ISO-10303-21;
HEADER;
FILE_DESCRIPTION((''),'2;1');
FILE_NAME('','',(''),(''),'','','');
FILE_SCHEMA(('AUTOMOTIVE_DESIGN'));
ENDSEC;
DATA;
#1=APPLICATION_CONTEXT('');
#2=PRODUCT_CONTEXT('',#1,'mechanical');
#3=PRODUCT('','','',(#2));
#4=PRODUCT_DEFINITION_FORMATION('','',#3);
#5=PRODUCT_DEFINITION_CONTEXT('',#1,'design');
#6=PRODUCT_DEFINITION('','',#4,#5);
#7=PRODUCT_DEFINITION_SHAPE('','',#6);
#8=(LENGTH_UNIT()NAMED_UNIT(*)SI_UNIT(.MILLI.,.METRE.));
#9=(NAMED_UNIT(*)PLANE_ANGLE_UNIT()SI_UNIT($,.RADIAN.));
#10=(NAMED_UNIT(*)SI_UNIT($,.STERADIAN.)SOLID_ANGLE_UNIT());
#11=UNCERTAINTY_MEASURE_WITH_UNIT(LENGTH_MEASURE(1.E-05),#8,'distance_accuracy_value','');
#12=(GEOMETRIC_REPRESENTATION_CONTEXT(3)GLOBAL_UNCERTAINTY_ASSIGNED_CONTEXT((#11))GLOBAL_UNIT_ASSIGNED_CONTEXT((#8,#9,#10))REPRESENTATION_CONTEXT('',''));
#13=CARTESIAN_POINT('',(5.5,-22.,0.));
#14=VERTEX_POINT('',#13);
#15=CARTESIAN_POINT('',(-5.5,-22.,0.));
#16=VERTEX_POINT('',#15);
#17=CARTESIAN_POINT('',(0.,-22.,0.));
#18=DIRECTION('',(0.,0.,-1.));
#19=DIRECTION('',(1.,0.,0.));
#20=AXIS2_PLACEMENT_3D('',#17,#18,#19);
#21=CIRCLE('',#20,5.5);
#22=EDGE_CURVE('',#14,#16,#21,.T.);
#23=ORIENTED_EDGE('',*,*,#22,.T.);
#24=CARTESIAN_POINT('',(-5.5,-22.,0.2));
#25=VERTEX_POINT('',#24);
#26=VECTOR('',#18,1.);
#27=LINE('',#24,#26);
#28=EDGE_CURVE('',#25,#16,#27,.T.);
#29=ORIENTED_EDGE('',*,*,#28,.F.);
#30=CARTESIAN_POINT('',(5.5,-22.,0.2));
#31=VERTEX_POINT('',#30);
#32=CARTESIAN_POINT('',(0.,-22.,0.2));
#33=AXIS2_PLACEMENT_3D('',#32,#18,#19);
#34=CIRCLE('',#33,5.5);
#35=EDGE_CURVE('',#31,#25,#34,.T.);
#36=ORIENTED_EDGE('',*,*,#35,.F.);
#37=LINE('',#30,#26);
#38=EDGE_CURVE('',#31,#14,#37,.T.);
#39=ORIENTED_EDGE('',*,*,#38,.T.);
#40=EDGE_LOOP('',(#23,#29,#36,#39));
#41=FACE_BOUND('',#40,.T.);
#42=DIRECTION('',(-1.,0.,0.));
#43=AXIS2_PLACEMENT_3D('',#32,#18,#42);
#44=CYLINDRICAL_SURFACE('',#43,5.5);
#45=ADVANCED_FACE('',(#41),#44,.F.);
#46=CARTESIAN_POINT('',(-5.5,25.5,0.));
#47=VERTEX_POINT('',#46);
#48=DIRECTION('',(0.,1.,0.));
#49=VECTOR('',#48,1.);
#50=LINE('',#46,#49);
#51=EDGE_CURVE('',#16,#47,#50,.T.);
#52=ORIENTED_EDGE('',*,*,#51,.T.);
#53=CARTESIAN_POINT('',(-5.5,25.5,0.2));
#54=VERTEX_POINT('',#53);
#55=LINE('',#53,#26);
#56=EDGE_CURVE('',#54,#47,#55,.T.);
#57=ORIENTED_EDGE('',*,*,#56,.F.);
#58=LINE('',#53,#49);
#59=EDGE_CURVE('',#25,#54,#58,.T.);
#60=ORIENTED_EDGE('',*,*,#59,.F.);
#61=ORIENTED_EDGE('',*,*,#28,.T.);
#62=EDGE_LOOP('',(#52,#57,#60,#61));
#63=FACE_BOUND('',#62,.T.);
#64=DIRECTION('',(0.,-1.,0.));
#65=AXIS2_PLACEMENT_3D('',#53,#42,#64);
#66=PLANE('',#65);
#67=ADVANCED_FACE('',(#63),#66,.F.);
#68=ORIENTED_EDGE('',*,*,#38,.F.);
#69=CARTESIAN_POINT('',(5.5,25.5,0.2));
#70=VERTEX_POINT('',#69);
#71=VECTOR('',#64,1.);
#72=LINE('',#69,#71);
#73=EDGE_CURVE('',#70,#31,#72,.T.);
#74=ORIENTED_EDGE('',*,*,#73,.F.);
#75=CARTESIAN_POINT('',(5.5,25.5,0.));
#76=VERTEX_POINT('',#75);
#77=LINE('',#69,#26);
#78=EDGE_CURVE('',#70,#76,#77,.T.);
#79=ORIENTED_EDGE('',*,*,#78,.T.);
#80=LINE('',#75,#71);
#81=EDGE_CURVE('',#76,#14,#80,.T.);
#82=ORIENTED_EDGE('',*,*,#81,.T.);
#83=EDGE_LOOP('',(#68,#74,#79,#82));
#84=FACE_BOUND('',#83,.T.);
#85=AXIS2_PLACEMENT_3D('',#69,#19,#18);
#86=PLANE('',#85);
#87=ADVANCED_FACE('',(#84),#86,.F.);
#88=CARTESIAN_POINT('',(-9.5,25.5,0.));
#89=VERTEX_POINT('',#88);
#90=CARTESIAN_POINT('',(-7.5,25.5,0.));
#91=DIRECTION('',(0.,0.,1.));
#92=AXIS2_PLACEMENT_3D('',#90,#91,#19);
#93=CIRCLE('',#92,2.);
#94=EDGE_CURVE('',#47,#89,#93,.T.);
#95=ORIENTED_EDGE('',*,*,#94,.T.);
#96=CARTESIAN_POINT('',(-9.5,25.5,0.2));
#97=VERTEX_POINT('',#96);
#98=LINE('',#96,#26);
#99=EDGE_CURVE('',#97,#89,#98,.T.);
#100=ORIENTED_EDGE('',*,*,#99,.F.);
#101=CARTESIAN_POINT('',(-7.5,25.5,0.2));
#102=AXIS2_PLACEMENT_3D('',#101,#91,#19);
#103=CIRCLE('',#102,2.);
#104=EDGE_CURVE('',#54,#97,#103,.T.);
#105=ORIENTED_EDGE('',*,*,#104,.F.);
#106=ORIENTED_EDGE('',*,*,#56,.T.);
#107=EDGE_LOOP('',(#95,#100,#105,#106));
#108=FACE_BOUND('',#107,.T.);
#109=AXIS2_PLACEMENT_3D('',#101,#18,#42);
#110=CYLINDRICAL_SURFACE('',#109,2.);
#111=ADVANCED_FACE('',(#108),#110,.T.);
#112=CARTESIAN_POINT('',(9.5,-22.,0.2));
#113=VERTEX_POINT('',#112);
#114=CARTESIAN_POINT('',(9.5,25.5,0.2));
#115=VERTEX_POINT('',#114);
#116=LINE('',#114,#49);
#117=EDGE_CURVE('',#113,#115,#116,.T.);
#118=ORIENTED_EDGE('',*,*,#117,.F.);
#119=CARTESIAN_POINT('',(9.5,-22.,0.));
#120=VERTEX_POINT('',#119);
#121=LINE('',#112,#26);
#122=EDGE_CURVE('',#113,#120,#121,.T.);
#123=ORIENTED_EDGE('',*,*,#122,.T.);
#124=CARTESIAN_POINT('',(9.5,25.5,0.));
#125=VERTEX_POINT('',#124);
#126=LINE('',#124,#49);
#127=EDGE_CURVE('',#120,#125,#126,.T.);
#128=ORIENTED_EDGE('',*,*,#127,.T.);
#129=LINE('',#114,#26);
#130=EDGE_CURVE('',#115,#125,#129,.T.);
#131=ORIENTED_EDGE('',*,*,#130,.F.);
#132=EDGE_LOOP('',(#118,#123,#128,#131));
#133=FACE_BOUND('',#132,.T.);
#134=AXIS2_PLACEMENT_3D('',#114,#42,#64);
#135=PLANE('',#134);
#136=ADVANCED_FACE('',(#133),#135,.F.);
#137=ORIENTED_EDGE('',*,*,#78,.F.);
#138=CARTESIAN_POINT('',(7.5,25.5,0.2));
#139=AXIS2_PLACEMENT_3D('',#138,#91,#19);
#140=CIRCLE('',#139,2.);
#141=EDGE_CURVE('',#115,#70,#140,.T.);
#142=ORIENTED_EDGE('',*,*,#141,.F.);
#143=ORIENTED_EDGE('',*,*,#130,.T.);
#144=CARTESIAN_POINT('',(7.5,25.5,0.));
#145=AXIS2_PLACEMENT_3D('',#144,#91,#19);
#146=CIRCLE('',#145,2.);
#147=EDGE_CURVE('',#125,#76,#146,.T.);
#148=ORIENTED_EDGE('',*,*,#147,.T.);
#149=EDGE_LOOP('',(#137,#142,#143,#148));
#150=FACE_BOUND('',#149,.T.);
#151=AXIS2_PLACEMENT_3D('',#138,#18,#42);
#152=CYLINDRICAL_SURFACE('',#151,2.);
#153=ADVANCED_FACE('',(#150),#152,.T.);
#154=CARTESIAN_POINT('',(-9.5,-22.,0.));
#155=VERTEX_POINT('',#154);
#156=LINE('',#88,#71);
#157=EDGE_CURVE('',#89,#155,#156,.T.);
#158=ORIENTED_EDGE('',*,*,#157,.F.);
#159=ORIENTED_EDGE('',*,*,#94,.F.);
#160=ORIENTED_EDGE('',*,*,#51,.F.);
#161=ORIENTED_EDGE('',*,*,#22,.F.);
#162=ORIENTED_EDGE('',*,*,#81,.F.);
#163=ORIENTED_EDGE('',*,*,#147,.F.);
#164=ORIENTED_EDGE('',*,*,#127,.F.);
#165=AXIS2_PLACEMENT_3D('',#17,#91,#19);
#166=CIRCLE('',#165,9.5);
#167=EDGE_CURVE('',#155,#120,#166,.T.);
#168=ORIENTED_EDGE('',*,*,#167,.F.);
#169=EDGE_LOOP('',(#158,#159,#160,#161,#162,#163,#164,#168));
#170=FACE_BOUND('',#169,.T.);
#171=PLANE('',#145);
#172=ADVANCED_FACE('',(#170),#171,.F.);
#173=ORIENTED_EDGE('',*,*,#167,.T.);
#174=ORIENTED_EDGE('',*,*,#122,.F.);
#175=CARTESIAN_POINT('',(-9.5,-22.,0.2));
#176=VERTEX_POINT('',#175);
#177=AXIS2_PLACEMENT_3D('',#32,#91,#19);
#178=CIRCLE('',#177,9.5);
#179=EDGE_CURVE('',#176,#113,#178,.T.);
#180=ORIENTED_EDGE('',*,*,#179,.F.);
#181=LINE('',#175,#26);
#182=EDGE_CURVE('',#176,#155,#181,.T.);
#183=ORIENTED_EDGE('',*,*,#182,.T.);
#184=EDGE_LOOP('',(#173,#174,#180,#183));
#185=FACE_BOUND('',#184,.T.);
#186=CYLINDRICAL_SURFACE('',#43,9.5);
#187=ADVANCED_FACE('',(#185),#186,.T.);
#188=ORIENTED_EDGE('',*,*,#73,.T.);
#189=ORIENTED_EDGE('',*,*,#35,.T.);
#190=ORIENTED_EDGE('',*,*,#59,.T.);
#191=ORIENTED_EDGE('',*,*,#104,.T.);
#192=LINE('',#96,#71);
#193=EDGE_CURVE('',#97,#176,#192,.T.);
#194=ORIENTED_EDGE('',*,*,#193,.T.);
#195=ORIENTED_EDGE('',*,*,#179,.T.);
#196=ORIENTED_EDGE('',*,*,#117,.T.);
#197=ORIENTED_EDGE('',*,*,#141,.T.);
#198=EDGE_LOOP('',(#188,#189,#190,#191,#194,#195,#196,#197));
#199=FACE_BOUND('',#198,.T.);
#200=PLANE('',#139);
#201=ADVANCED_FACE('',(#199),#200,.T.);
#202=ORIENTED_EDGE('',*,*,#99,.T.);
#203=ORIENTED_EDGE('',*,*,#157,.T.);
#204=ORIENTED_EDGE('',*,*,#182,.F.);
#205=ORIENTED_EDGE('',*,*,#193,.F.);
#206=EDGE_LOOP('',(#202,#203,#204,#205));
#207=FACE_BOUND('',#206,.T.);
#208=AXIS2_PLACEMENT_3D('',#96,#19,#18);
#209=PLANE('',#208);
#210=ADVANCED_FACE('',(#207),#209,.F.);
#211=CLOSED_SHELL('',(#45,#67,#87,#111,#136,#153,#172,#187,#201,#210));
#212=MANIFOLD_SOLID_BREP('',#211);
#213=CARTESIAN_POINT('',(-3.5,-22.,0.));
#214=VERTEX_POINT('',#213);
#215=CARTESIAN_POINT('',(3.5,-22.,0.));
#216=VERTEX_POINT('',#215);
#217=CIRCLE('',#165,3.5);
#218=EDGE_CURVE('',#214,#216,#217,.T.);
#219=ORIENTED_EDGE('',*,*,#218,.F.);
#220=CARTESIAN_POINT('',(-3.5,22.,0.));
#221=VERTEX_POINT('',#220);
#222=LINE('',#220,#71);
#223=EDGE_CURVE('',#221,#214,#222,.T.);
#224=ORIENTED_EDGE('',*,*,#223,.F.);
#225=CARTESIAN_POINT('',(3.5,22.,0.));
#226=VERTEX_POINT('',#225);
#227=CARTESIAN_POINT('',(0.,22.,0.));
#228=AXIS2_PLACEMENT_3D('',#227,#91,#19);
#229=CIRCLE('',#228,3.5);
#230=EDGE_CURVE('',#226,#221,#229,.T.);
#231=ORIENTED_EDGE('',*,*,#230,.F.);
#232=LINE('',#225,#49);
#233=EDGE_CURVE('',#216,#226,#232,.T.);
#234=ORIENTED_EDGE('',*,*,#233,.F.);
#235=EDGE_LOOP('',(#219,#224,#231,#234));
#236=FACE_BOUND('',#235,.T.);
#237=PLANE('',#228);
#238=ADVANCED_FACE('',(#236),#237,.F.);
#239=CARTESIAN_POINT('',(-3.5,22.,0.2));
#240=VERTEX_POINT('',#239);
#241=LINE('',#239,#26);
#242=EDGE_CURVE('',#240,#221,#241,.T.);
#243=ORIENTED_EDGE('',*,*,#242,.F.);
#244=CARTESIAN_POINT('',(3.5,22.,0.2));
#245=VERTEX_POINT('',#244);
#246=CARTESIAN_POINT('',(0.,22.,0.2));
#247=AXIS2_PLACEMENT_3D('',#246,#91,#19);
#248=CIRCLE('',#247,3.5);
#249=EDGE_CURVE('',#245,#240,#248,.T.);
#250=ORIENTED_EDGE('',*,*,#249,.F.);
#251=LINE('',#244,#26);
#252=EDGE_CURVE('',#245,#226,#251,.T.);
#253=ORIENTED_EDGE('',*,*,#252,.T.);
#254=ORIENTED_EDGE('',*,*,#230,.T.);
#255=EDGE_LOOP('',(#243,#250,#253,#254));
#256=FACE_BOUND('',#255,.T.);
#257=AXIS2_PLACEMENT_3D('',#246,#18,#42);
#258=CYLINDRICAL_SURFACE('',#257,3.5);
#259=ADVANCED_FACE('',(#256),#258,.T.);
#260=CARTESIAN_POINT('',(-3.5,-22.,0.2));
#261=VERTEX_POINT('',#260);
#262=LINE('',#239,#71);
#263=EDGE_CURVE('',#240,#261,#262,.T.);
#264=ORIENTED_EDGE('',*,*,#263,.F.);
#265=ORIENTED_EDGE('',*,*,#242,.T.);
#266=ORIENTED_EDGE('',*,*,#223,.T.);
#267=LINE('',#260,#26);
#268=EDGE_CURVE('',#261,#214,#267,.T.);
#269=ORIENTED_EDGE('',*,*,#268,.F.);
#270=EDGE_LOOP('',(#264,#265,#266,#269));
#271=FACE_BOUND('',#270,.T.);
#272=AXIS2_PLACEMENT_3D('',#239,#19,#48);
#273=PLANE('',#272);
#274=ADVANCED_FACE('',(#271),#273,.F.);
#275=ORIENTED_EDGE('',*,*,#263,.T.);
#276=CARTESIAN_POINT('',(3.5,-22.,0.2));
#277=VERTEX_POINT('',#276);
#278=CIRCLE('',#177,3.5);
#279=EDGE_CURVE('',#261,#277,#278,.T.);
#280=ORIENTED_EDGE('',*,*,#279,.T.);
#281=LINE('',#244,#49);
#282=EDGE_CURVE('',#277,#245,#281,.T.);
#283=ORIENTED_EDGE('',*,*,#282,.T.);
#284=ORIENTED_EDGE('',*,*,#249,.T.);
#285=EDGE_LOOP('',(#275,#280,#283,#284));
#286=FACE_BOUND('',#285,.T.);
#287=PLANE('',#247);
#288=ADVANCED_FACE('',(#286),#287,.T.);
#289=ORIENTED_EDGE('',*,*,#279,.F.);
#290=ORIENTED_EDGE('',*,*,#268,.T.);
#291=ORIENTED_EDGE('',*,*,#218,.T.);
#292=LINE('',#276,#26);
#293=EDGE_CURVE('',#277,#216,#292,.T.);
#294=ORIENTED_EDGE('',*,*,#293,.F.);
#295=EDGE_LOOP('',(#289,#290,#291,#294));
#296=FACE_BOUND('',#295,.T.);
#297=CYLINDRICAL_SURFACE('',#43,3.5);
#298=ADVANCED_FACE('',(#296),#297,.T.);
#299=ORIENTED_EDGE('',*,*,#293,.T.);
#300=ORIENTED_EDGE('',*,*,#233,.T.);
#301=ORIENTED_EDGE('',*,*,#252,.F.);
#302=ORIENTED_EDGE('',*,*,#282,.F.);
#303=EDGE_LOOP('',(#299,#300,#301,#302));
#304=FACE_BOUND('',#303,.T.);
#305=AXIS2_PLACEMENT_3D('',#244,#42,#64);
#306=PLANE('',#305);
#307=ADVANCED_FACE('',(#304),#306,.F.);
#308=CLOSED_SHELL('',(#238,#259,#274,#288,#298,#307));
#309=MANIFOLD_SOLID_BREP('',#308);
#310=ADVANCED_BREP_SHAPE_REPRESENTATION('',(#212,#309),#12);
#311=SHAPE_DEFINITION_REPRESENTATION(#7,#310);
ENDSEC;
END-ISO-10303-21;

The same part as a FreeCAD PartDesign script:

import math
import FreeCAD as App
import Part
import Sketcher

V = App.Vector
Q = App.Units.Quantity

doc = App.newDocument("Part")
body = doc.addObject("PartDesign::Body", "Body")

sketch1 = body.newObject("Sketcher::SketchObject", "Sketch")
sketch1.AttachmentSupport = (doc.getObject("XY_Plane"), [""])
sketch1.MapMode = "FlatFace"
sketch1.addGeometry([
    Part.LineSegment(V(3.5, -22, 0), V(3.5, 22, 0)),
    Part.ArcOfCircle(Part.Circle(V(0, 22, 0), V(0, 0, 1), 3.5), math.radians(0), math.radians(180)),
    Part.LineSegment(V(-3.5, 22, 0), V(-3.5, -22, 0)),
    Part.ArcOfCircle(Part.Circle(V(0, -22, 0), V(0, 0, 1), 3.5), math.radians(180), math.radians(360)),
], False)
sketch1.addConstraint([
    Sketcher.Constraint("Tangent", 0, 2, 1, 1),
    Sketcher.Constraint("Tangent", 1, 2, 2, 1),
    Sketcher.Constraint("Tangent", 2, 2, 3, 1),
    Sketcher.Constraint("Tangent", 3, 2, 0, 1),
    Sketcher.Constraint("Vertical", 0),
    Sketcher.Constraint("Vertical", 2),
    Sketcher.Constraint("Symmetric", 1, 3, 3, 3, -1, 1),
    Sketcher.Constraint("Radius", 1, Q("3.5 mm")),
    Sketcher.Constraint("DistanceY", 0, 1, 0, 2, Q("44 mm")),
])
pad1 = body.newObject("PartDesign::Pad", "Pad")
pad1.Profile = sketch1
pad1.Length = 0.2
body2 = doc.addObject("PartDesign::Body", "Body001")

sketch2 = body2.newObject("Sketcher::SketchObject", "Sketch001")
sketch2.AttachmentSupport = (doc.getObject("XY_Plane001"), [""])
sketch2.MapMode = "FlatFace"
sketch2.addGeometry([
    Part.LineSegment(V(9.5, -22, 0), V(9.5, 25.5, 0)),
    Part.ArcOfCircle(Part.Circle(V(7.5, 25.5, 0), V(0, 0, 1), 2), math.radians(0), math.radians(180)),
    Part.LineSegment(V(5.5, 25.5, 0), V(5.5, -22, 0)),
    Part.ArcOfCircle(Part.Circle(V(0, -22, 0), V(0, 0, 1), 5.5), math.radians(180), math.radians(360)),
    Part.LineSegment(V(-5.5, -22, 0), V(-5.5, 25.5, 0)),
    Part.ArcOfCircle(Part.Circle(V(-7.5, 25.5, 0), V(0, 0, 1), 2), math.radians(0), math.radians(180)),
    Part.LineSegment(V(-9.5, 25.5, 0), V(-9.5, -22, 0)),
    Part.ArcOfCircle(Part.Circle(V(0, -22, 0), V(0, 0, 1), 9.5), math.radians(180), math.radians(360)),
], False)
sketch2.addConstraint([
    Sketcher.Constraint("Tangent", 0, 2, 1, 1),
    Sketcher.Constraint("Tangent", 1, 2, 2, 1),
    Sketcher.Constraint("Tangent", 2, 2, 3, 2),
    Sketcher.Constraint("Tangent", 3, 1, 4, 1),
    Sketcher.Constraint("Tangent", 4, 2, 5, 1),
    Sketcher.Constraint("Tangent", 5, 2, 6, 1),
    Sketcher.Constraint("Tangent", 6, 2, 7, 1),
    Sketcher.Constraint("Tangent", 7, 2, 0, 1),
    Sketcher.Constraint("Vertical", 0),
    Sketcher.Constraint("Vertical", 2),
    Sketcher.Constraint("Vertical", 4),
    Sketcher.Constraint("Vertical", 6),
    Sketcher.Constraint("Coincident", 7, 3, 3, 3),
    Sketcher.Constraint("Symmetric", 1, 3, 5, 3, -2),
    Sketcher.Constraint("Radius", 1, Q("2 mm")),
    Sketcher.Constraint("Radius", 3, Q("5.5 mm")),
    Sketcher.Constraint("DistanceY", 0, 1, 0, 2, Q("47.5 mm")),
    Sketcher.Constraint("DistanceY", 3, 3, -1, 1, Q("22 mm")),
])
pad2 = body2.newObject("PartDesign::Pad", "Pad001")
pad2.Profile = sketch2
pad2.Length = 0.2

doc.recompute()
